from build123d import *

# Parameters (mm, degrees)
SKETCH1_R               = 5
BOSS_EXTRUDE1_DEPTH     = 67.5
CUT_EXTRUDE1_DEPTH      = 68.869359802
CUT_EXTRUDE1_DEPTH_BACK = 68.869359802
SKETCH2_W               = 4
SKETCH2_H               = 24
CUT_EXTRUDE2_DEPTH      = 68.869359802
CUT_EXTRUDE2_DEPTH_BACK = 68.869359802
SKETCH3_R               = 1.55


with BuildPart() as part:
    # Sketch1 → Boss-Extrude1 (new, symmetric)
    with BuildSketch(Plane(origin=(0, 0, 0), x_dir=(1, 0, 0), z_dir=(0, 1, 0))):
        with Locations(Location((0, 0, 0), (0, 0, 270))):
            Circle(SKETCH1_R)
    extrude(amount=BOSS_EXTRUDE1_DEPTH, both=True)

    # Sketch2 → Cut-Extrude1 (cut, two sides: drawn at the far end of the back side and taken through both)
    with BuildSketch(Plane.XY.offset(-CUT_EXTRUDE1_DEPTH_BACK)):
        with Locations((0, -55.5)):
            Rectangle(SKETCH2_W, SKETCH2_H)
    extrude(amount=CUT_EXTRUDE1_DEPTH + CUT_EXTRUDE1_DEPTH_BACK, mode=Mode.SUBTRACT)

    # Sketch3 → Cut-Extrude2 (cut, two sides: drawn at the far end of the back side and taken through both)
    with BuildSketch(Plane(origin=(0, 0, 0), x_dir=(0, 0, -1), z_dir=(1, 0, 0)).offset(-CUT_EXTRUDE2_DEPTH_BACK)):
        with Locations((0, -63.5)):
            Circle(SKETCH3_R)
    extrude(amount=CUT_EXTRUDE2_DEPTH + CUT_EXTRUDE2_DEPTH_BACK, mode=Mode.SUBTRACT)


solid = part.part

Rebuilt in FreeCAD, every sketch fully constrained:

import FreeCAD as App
import Part
import Sketcher

V = App.Vector


def add_polygon(sketch, points):
    """Adds a closed chain of lines whose ends are joined by coincident constraints."""
    first, n = sketch.GeometryCount, len(points)
    for a, b in zip(points, points[1:] + points[:1]):
        sketch.addGeometry(Part.LineSegment(App.Vector(*a, 0), App.Vector(*b, 0)), False)
    for i in range(n):
        sketch.addConstraint(Sketcher.Constraint("Coincident", first + i, 2, first + (i + 1) % n, 1))

doc = App.newDocument("Part")
body = doc.addObject("PartDesign::Body", "Body")

sketch1 = body.newObject("Sketcher::SketchObject", "Sketch")
sketch1.AttachmentSupport = (doc.getObject("XZ_Plane"), [""])
sketch1.MapMode = "FlatFace"
sketch1.addGeometry(Part.Circle(V(0, 0, 0), V(0, 0, 1), 5), False)
sketch1.addConstraint(Sketcher.Constraint("Coincident", 0, 3, -1, 1))
sketch1.addConstraint(Sketcher.Constraint("Diameter", 0, 10.0))
pad1 = body.newObject("PartDesign::Pad", "Pad")
pad1.Profile = sketch1
pad1.Length = 135
pad1.Midplane = True

sketch2 = body.newObject("Sketcher::SketchObject", "Sketch001")
sketch2.AttachmentSupport = (doc.getObject("XY_Plane"), [""])
sketch2.MapMode = "FlatFace"
add_polygon(sketch2, [(-2, -43.5), (-2, -67.5), (2, -67.5), (2, -43.5)])
sketch2.addConstraint(Sketcher.Constraint("Vertical", 0))
sketch2.addConstraint(Sketcher.Constraint("Horizontal", 1))
sketch2.addConstraint(Sketcher.Constraint("Vertical", 2))
sketch2.addConstraint(Sketcher.Constraint("Horizontal", 3))
sketch2.addConstraint(Sketcher.Constraint("DistanceX", 1, 1, 1, 2, 4.0))
sketch2.addConstraint(Sketcher.Constraint("DistanceY", 0, 2, 0, 1, 24.0))
sketch2.addConstraint(Sketcher.Constraint("DistanceX", 0, 2, -1, 1, 2.0))
sketch2.addConstraint(Sketcher.Constraint("DistanceY", 0, 2, -1, 1, 67.5))
pocket1 = body.newObject("PartDesign::Pocket", "Pocket")
pocket1.Profile = sketch2
pocket1.Type = "ThroughAll"
pocket1.Midplane = True

sketch3 = body.newObject("Sketcher::SketchObject", "Sketch002")
sketch3.AttachmentSupport = (doc.getObject("YZ_Plane"), [""])
sketch3.MapMode = "FlatFace"
sketch3.addGeometry(Part.Circle(V(-63.5, 0, 0), V(0, 0, 1), 1.55), False)
sketch3.addConstraint(Sketcher.Constraint("PointOnObject", 0, 3, -1))
sketch3.addConstraint(Sketcher.Constraint("Diameter", 0, 3.1))
sketch3.addConstraint(Sketcher.Constraint("DistanceX", 0, 3, -1, 1, 63.5))
pocket2 = body.newObject("PartDesign::Pocket", "Pocket001")
pocket2.Profile = sketch3
pocket2.Type = "ThroughAll"
pocket2.Midplane = True

doc.recompute()
